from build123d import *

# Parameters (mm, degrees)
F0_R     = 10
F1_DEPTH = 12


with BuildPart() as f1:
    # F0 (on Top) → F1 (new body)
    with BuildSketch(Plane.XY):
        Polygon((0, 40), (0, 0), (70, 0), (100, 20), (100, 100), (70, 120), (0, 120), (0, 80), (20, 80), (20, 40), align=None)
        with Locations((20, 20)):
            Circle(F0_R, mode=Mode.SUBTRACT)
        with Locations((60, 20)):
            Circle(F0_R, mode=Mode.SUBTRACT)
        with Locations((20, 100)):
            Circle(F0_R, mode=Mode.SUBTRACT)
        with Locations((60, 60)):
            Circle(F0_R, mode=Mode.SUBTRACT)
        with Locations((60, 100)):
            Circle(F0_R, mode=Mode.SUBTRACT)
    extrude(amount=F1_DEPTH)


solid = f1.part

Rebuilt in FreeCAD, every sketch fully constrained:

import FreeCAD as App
import Part
import Sketcher

V = App.Vector
Q = App.Units.Quantity


def add_polygon(sketch, points):
    """Adds a closed chain of lines whose ends are joined by coincident constraints."""
    first, n = sketch.GeometryCount, len(points)
    for a, b in zip(points, points[1:] + points[:1]):
        sketch.addGeometry(Part.LineSegment(App.Vector(*a, 0), App.Vector(*b, 0)), False)
    for i in range(n):
        sketch.addConstraint(Sketcher.Constraint("Coincident", first + i, 2, first + (i + 1) % n, 1))

doc = App.newDocument("Part")
body = doc.addObject("PartDesign::Body", "Body")

# Sketch on XY plane
sketch1 = doc.addObject("Sketcher::SketchObject", "Sketch")
body.addObject(sketch1)
sketch1.AttachmentSupport = (doc.XY_Plane, [""])
sketch1.MapMode = "FlatFace"
add_polygon(sketch1, [(0, 40), (0, 0), (70, 0), (100, 20), (100, 100), (70, 120), (0, 120), (0, 80), (20, 80), (20, 40)])  # lines 0-9
sketch1.addGeometry(Part.Circle(V(20, 20, 0), V(0, 0, 1), 10), False)  # 10
sketch1.addGeometry(Part.Circle(V(60, 20, 0), V(0, 0, 1), 10), False)  # 11
sketch1.addGeometry(Part.Circle(V(20, 100, 0), V(0, 0, 1), 10), False)  # 12
sketch1.addGeometry(Part.Circle(V(60, 60, 0), V(0, 0, 1), 10), False)  # 13
sketch1.addGeometry(Part.Circle(V(60, 100, 0), V(0, 0, 1), 10), False)  # 14
sketch1.addConstraint([
    Sketcher.Constraint("Vertical", 0),
    Sketcher.Constraint("Horizontal", 1),
    Sketcher.Constraint("Vertical", 3),
    Sketcher.Constraint("Horizontal", 5),
    Sketcher.Constraint("Vertical", 6),
    Sketcher.Constraint("Horizontal", 7),
    Sketcher.Constraint("Vertical", 8),
    Sketcher.Constraint("Horizontal", 9),
    Sketcher.Constraint("Coincident", 0, 2, -1, 1),
    Sketcher.Constraint("Equal", 10, 11),
    Sketcher.Constraint("Equal", 11, 12),
    Sketcher.Constraint("Equal", 12, 13),
    Sketcher.Constraint("Equal", 13, 14),
    Sketcher.Constraint("PointOnObject", 5, 2, -2),
    Sketcher.Constraint("Horizontal", 10, 3, 11, 3),
    Sketcher.Constraint("Horizontal", 12, 3, 14, 3),
    Sketcher.Constraint("Horizontal", 11, 3, 2, 2),
    Sketcher.Constraint("Horizontal", 14, 3, 3, 2),
    Sketcher.Constraint("Vertical", 10, 3, 12, 3),
    Sketcher.Constraint("Vertical", 11, 3, 13, 3),
    Sketcher.Constraint("Vertical", 13, 3, 14, 3),
    Sketcher.Constraint("Vertical", 1, 2, 4, 2),
    Sketcher.Constraint("Vertical", 12, 3, 7, 2),
    Sketcher.Constraint("Equal", 0, 6),
    Sketcher.Constraint("Equal", 6, 8),
    Sketcher.Constraint("Equal", 2, 4),
    Sketcher.Constraint("Diameter", 10, Q("20 mm")),
    Sketcher.Constraint("DistanceX", 1, 1, 1, 2, Q("70 mm")),
    Sketcher.Constraint("DistanceX", 7, 1, 7, 2, Q("20 mm")),
    Sketcher.Constraint("DistanceY", 0, 2, 0, 1, Q("40 mm")),
    Sketcher.Constraint("DistanceY", 3, 1, 3, 2, Q("80 mm")),
    Sketcher.Constraint("DistanceX", -1, 1, 11, 3, Q("60 mm")),
    Sketcher.Constraint("DistanceY", -1, 1, 13, 3, Q("60 mm")),
    Sketcher.Constraint("DistanceX", -1, 1, 2, 2, Q("100 mm")),
])
pad1 = doc.addObject("PartDesign::Pad", "Pad")
body.addObject(pad1)
pad1.Profile = sketch1
pad1.Length = 12

doc.recompute()
